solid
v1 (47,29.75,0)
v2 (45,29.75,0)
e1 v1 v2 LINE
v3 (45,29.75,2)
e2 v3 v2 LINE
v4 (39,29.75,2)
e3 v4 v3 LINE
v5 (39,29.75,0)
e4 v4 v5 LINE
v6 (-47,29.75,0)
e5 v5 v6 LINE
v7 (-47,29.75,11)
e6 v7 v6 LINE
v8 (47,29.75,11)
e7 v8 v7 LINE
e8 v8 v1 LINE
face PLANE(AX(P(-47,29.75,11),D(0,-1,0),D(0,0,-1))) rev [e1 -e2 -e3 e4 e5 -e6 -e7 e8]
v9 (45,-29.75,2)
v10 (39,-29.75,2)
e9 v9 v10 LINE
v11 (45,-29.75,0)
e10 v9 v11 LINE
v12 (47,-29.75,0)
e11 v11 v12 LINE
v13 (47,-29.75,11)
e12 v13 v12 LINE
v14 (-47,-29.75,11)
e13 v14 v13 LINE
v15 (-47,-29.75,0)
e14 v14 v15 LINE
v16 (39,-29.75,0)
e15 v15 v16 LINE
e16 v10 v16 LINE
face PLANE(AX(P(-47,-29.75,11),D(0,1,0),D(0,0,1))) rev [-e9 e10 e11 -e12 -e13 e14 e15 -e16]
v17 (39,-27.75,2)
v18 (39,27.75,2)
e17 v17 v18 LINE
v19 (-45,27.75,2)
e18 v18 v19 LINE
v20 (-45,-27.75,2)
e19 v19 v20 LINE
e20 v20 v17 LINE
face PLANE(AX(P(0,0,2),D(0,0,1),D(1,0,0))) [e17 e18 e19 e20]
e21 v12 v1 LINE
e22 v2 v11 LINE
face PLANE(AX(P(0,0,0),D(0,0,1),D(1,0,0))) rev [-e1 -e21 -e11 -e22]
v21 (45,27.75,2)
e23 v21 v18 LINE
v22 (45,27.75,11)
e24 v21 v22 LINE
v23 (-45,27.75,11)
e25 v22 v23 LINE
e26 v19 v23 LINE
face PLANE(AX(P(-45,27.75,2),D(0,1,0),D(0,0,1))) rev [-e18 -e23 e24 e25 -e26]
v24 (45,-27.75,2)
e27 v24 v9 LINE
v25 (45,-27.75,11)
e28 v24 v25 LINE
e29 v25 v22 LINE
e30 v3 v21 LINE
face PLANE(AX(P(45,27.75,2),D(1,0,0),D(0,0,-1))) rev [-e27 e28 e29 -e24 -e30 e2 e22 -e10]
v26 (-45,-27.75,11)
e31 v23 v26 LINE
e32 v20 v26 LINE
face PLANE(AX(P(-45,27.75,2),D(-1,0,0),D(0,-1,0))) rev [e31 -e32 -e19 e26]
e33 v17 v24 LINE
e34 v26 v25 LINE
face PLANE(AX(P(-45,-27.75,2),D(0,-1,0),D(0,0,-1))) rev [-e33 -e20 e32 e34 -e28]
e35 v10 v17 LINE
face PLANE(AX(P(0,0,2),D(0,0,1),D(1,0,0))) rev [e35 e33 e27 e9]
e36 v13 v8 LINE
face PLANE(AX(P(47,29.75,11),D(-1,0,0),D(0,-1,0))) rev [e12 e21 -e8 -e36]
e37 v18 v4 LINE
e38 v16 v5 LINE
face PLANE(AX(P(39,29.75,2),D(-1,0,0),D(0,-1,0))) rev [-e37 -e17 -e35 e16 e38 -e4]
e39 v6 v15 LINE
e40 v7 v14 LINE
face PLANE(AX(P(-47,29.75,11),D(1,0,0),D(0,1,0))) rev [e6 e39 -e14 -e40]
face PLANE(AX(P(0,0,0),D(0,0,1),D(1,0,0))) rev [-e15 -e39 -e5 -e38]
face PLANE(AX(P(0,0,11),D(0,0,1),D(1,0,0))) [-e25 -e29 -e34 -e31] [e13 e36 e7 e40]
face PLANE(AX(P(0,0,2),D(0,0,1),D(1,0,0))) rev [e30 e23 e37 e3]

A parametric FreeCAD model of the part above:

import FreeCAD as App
import Part
import Sketcher
from FreeCAD import Vector
Q = App.Units.Quantity


def add_polygon(sketch, points):
    """Adds a closed chain of lines whose ends are joined by coincident constraints."""
    first, n = sketch.GeometryCount, len(points)
    for a, b in zip(points, points[1:] + points[:1]):
        sketch.addGeometry(Part.LineSegment(App.Vector(*a, 0), App.Vector(*b, 0)), False)
    for i in range(n):
        sketch.addConstraint(Sketcher.Constraint("Coincident", first + i, 2, first + (i + 1) % n, 1))

doc = App.newDocument("Part")
params = doc.addObject("Spreadsheet::Sheet", "Params")
for row, (alias, value) in enumerate([
    ("sketch1_width", "94 mm"),
    ("sketch1_height", "59.5 mm"),
    ("pad1_length", "11 mm"),
    ("sketch2_width", "90 mm"),
    ("sketch2_height", "55.5 mm"),
    ("pocket1_length", "9 mm"),
    ("sketch3_width", "6 mm"),
    ("sketch3_height", "59.5 mm"),
    ("pocket2_length", "2 mm"),
], start=1):
    params.set(f"A{row}", alias)
    params.set(f"B{row}", "=" + value)
    params.setAlias(f"B{row}", alias)

body = doc.addObject("PartDesign::Body", "Body")

sketch1 = body.newObject("Sketcher::SketchObject", "Sketch")
sketch1.AttachmentSupport = (doc.getObject("XY_Plane"), [""])
sketch1.MapMode = "FlatFace"
add_polygon(sketch1, [(-47, 30), (-47, -30), (47, -30), (47, 30)])
sketch1.addConstraint(Sketcher.Constraint("Vertical", 0))
sketch1.addConstraint(Sketcher.Constraint("Horizontal", 1))
sketch1.addConstraint(Sketcher.Constraint("Vertical", 2))
sketch1.addConstraint(Sketcher.Constraint("Horizontal", 3))
sketch1.addConstraint(Sketcher.Constraint("Symmetric", 0, 2, 2, 2, -1, 1))
sketch1.addConstraint(Sketcher.Constraint("DistanceX", 1, 1, 1, 2, Q("94 mm")))
sketch1.addConstraint(Sketcher.Constraint("DistanceY", 0, 2, 0, 1, Q("59.5 mm")))
sketch1.setExpression("Constraints[9]", "Params.sketch1_width")
sketch1.setExpression("Constraints[10]", "Params.sketch1_height")
pad1 = body.newObject("PartDesign::Pad", "Pad")
pad1.Profile = sketch1
pad1.setExpression("Length", "Params.pad1_length")

sketch2 = body.newObject("Sketcher::SketchObject", "Sketch001")
sketch2.AttachmentSupport = (doc.getObject("XY_Plane"), [""])
sketch2.MapMode = "FlatFace"
sketch2.AttachmentOffset = App.Placement(Vector(0, 0, 11), App.Rotation())
add_polygon(sketch2, [(-45, 28), (-45, -28), (45, -28), (45, 28)])
sketch2.addConstraint(Sketcher.Constraint("Vertical", 0))
sketch2.addConstraint(Sketcher.Constraint("Horizontal", 1))
sketch2.addConstraint(Sketcher.Constraint("Vertical", 2))
sketch2.addConstraint(Sketcher.Constraint("Horizontal", 3))
sketch2.addConstraint(Sketcher.Constraint("Symmetric", 0, 2, 2, 2, -1, 1))
sketch2.addConstraint(Sketcher.Constraint("DistanceX", 1, 1, 1, 2, Q("90 mm")))
sketch2.addConstraint(Sketcher.Constraint("DistanceY", 0, 2, 0, 1, Q("55.5 mm")))
sketch2.setExpression("Constraints[9]", "Params.sketch2_width")
sketch2.setExpression("Constraints[10]", "Params.sketch2_height")
pocket1 = body.newObject("PartDesign::Pocket", "Pocket")
pocket1.Profile = sketch2
pocket1.setExpression("Length", "Params.pocket1_length")

sketch3 = body.newObject("Sketcher::SketchObject", "Sketch002")
sketch3.AttachmentSupport = (doc.getObject("XY_Plane"), [""])
sketch3.MapMode = "FlatFace"
add_polygon(sketch3, [(45, 30), (45, -30), (39, -30), (39, 30)])
sketch3.addConstraint(Sketcher.Constraint("Vertical", 0))
sketch3.addConstraint(Sketcher.Constraint("Horizontal", 1))
sketch3.addConstraint(Sketcher.Constraint("Vertical", 2))
sketch3.addConstraint(Sketcher.Constraint("Horizontal", 3))
sketch3.addConstraint(Sketcher.Constraint("DistanceX", 1, 2, 1, 1, Q("6 mm")))
sketch3.addConstraint(Sketcher.Constraint("DistanceY", 0, 2, 0, 1, Q("59.5 mm")))
sketch3.addConstraint(Sketcher.Constraint("DistanceX", -1, 1, 0, 2, Q("45 mm")))
sketch3.addConstraint(Sketcher.Constraint("DistanceY", 0, 2, -1, 1, Q("29.75 mm")))
sketch3.setExpression("Constraints[8]", "Params.sketch3_width")
sketch3.setExpression("Constraints[9]", "Params.sketch3_height")
pocket2 = body.newObject("PartDesign::Pocket", "Pocket001")
pocket2.Profile = sketch3
pocket2.setExpression("Length", "Params.pocket2_length")
pocket2.Reversed = True

doc.recompute()
